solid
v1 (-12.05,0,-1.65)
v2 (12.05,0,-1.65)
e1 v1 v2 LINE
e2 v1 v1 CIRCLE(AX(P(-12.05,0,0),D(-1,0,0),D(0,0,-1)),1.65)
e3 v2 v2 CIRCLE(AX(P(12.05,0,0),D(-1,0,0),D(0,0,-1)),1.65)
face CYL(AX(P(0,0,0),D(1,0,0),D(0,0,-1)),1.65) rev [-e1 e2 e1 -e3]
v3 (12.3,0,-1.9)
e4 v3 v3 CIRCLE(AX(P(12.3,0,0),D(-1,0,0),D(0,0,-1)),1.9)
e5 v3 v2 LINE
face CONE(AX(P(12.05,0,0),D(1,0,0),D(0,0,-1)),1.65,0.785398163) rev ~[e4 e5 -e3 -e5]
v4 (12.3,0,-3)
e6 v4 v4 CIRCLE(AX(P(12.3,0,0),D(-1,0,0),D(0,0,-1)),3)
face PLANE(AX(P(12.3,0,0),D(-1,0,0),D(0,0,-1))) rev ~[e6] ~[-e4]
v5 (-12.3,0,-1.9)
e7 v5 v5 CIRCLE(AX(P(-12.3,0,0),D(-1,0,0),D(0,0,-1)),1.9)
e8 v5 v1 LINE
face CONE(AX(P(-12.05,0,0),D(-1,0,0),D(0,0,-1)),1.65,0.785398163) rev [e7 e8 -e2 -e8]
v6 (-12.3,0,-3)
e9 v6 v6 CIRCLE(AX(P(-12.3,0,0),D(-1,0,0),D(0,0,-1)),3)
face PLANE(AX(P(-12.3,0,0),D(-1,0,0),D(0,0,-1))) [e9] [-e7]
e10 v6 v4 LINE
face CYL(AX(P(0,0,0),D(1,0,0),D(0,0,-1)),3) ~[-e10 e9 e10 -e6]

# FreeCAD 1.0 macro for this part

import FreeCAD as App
import Part
import Sketcher
from FreeCAD import Vector
Q = App.Units.Quantity


def edges_at(feature, points):
    """Names of the edges that pass closest to the given points."""
    edges = feature.Shape.Edges
    near = lambda p: min(range(len(edges)), key=lambda i: edges[i].distToShape(Part.Vertex(*p))[0])
    return sorted({f"Edge{near(p) + 1}" for p in points})

doc = App.newDocument("Part")
body = doc.addObject("PartDesign::Body", "Body")

# Sketch on XZ plane
sketch1 = doc.addObject("Sketcher::SketchObject", "Sketch")
body.addObject(sketch1)
sketch1.AttachmentSupport = (doc.XZ_Plane, [""])
sketch1.MapMode = "FlatFace"
sketch1.addGeometry([
    Part.LineSegment(Vector(-12.3, -1.6, 0), Vector(-12.3, -3, 0)),
    Part.LineSegment(Vector(-12.3, -3, 0), Vector(12.3, -3, 0)),
    Part.LineSegment(Vector(12.3, -3, 0), Vector(12.3, -1.6, 0)),
    Part.LineSegment(Vector(12.3, -1.6, 0), Vector(-12.3, -1.6, 0)),
], False)
sketch1.addConstraint([
    Sketcher.Constraint("Coincident", 0, 2, 1, 1),
    Sketcher.Constraint("Coincident", 1, 2, 2, 1),
    Sketcher.Constraint("Coincident", 2, 2, 3, 1),
    Sketcher.Constraint("Coincident", 3, 2, 0, 1),
    Sketcher.Constraint("Vertical", 0),
    Sketcher.Constraint("Horizontal", 1),
    Sketcher.Constraint("Vertical", 2),
    Sketcher.Constraint("Horizontal", 3),
    Sketcher.Constraint("DistanceX", 1, 1, 1, 2, Q("24.6 mm")),
    Sketcher.Constraint("DistanceY", 0, 2, -1, 1, Q("3 mm")),
    Sketcher.Constraint("DistanceY", 0, 2, 0, 1, Q("1.35 mm")),
    Sketcher.Constraint("DistanceX", 0, 2, -1, 1, Q("12.3 mm")),
])
revolution = doc.addObject("PartDesign::Revolution", "Revolution")
body.addObject(revolution)
revolution.Profile = sketch1
revolution.ReferenceAxis = (sketch1, ["H_Axis"])
revolution.Angle = 360
doc.recompute()

chamfer = doc.addObject("PartDesign::Chamfer", "Chamfer")
body.addObject(chamfer)
chamfer.Base = (revolution, edges_at(revolution, [(12.3, 0, 1.65), (-12.3, 0, 1.65), (0, 0, -1.65)]))
chamfer.ChamferType = "Two distances"
chamfer.Size = 0.25
chamfer.Size2 = 0.25

doc.recompute()
